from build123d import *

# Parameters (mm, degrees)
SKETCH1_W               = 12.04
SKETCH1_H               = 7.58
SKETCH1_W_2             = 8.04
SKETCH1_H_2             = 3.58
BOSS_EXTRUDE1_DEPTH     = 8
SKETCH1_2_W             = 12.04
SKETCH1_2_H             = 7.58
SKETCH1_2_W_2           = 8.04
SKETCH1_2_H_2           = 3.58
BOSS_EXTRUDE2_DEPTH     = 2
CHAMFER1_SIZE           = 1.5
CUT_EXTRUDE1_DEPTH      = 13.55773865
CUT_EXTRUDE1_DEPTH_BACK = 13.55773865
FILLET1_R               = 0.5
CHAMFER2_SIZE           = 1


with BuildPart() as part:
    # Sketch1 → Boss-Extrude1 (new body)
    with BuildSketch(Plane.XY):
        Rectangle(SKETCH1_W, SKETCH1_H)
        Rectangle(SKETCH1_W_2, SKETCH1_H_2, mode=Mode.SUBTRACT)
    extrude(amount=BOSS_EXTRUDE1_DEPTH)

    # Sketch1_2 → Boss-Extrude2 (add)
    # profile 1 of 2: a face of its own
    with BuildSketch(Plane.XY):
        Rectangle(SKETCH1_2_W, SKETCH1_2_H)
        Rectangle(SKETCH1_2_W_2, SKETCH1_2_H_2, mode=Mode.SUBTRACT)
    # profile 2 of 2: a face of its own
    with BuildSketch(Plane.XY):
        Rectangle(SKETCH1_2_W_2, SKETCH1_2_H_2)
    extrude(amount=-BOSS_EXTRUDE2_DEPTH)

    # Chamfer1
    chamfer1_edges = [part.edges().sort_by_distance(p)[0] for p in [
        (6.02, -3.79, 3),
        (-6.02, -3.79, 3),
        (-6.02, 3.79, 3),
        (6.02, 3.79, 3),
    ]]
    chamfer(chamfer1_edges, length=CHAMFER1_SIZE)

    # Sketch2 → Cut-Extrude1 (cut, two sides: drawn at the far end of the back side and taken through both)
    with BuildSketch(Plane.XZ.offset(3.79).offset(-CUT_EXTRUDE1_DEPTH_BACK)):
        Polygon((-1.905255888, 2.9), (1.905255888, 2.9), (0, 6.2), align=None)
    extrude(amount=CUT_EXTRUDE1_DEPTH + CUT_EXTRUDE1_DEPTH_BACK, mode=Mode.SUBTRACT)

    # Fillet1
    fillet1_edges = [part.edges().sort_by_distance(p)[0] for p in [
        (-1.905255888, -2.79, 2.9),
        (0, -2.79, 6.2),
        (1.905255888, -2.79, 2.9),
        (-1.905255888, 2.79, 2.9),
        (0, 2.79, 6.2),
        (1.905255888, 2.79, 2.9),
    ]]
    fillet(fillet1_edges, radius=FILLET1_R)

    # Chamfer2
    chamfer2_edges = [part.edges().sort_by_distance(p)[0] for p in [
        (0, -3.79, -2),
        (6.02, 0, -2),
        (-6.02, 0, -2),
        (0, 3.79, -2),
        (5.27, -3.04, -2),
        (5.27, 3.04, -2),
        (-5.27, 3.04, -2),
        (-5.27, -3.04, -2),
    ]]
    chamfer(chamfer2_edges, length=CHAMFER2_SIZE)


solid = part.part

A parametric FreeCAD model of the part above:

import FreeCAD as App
import Part
import Sketcher

V = App.Vector
Q = App.Units.Quantity


def edges_at(feature, points):
    """Names of the edges that pass closest to the given points."""
    edges = feature.Shape.Edges
    near = lambda p: min(range(len(edges)), key=lambda i: edges[i].distToShape(Part.Vertex(*p))[0])
    return sorted({f"Edge{near(p) + 1}" for p in points})


def add_polygon(sketch, points):
    """Adds a closed chain of lines whose ends are joined by coincident constraints."""
    first, n = sketch.GeometryCount, len(points)
    for a, b in zip(points, points[1:] + points[:1]):
        sketch.addGeometry(Part.LineSegment(App.Vector(*a, 0), App.Vector(*b, 0)), False)
    for i in range(n):
        sketch.addConstraint(Sketcher.Constraint("Coincident", first + i, 2, first + (i + 1) % n, 1))

doc = App.newDocument("Part")
params = doc.addObject("Spreadsheet::Sheet", "Params")
for row, (alias, value) in enumerate([
    ("sketch1_width", "12.04 mm"),
    ("sketch1_height", "7.58 mm"),
    ("pad1_length", "8 mm"),
    ("sketch2_width", "12.04 mm"),
    ("sketch2_height", "7.58 mm"),
    ("pad2_length", "2 mm"),
    ("chamfer_size", "1.5 mm"),
    ("fillet_radius", "0.5 mm"),
    ("chamfer2_size", "1 mm"),
], start=1):
    params.set(f"A{row}", alias)
    params.set(f"B{row}", "=" + value)
    params.setAlias(f"B{row}", alias)

body = doc.addObject("PartDesign::Body", "Body")

# Sketch on XY plane
sketch1 = body.newObject("Sketcher::SketchObject", "Sketch")
sketch1.AttachmentSupport = (doc.getObject("XY_Plane"), [""])
sketch1.MapMode = "FlatFace"
add_polygon(sketch1, [(-6, 3.8), (-6, -3.8), (6, -3.8), (6, 3.8)])  # lines 0-3
add_polygon(sketch1, [(4, -1.8), (-4, -1.8), (-4, 1.8), (4, 1.8)])  # lines 4-7
sketch1.addConstraint([
    Sketcher.Constraint("Vertical", 0),
    Sketcher.Constraint("Horizontal", 1),
    Sketcher.Constraint("Vertical", 2),
    Sketcher.Constraint("Horizontal", 3),
    Sketcher.Constraint("Horizontal", 4),
    Sketcher.Constraint("Vertical", 5),
    Sketcher.Constraint("Horizontal", 6),
    Sketcher.Constraint("Vertical", 7),
    Sketcher.Constraint("Symmetric", 0, 2, 2, 2, -1, 1),
    Sketcher.Constraint("Symmetric", 4, 2, 6, 2, -1, 1),
    Sketcher.Constraint("DistanceX", 0, 2, 4, 2, Q("2 mm")),
    Sketcher.Constraint("DistanceY", 0, 2, 4, 2, Q("2 mm")),
    Sketcher.Constraint("DistanceX", 1, 1, 1, 2, Q("12.04 mm")),
    Sketcher.Constraint("DistanceY", 0, 2, 0, 1, Q("7.58 mm")),
])
sketch1.setExpression("Constraints[20]", "Params.sketch1_width")
sketch1.setExpression("Constraints[21]", "Params.sketch1_height")
pad1 = body.newObject("PartDesign::Pad", "Pad")
pad1.Profile = sketch1
pad1.setExpression("Length", "Params.pad1_length")

# Sketch on XY plane
sketch2 = body.newObject("Sketcher::SketchObject", "Sketch001")
sketch2.AttachmentSupport = (doc.getObject("XY_Plane"), [""])
sketch2.MapMode = "FlatFace"
add_polygon(sketch2, [(-6, 4), (-6, -4), (6, -4), (6, 4)])  # lines 0-3
sketch2.addConstraint([
    Sketcher.Constraint("Vertical", 0),
    Sketcher.Constraint("Horizontal", 1),
    Sketcher.Constraint("Vertical", 2),
    Sketcher.Constraint("Horizontal", 3),
    Sketcher.Constraint("Symmetric", 0, 2, 2, 2, -1, 1),
    Sketcher.Constraint("DistanceX", 1, 1, 1, 2, Q("12.04 mm")),
    Sketcher.Constraint("DistanceY", 0, 2, 0, 1, Q("7.58 mm")),
])
sketch2.setExpression("Constraints[9]", "Params.sketch2_width")
sketch2.setExpression("Constraints[10]", "Params.sketch2_height")
pad2 = body.newObject("PartDesign::Pad", "Pad001")
pad2.Profile = sketch2
pad2.setExpression("Length", "Params.pad2_length")
pad2.Reversed = True
doc.recompute()

chamfer = body.newObject("PartDesign::Chamfer", "Chamfer")
chamfer.Base = (pad2, edges_at(pad2, [
    (6.02, -3.79, 3),
    (-6.02, -3.79, 3),
    (-6.02, 3.79, 3),
    (6.02, 3.79, 3),
]))
chamfer.setExpression("Size", "Params.chamfer_size")

# Sketch on XZ plane
sketch3 = body.newObject("Sketcher::SketchObject", "Sketch002")
sketch3.AttachmentSupport = (doc.getObject("XZ_Plane"), [""])
sketch3.MapMode = "FlatFace"
sketch3.AttachmentOffset = App.Placement(V(0, 0, 3.79), App.Rotation())
add_polygon(sketch3, [(-1.9, 2.9), (1.9, 2.9), (0, 6.2)])  # lines 0-2
sketch3.addConstraint([
    Sketcher.Constraint("Horizontal", 0),
    Sketcher.Constraint("PointOnObject", 1, 2, -2),
    Sketcher.Constraint("Equal", 1, 2),
    Sketcher.Constraint("Angle", 1, Q("120 deg")),
    Sketcher.Constraint("DistanceY", -1, 1, 0, 2, Q("2.9 mm")),
    Sketcher.Constraint("DistanceY", -1, 1, 1, 2, Q("6.2 mm")),
])
pocket1 = body.newObject("PartDesign::Pocket", "Pocket")
pocket1.Profile = sketch3
pocket1.Type = "ThroughAll"
pocket1.Midplane = True
doc.recompute()

fillet = body.newObject("PartDesign::Fillet", "Fillet")
fillet.Base = (pocket1, edges_at(pocket1, [
    (-1.905, -2.79, 2.9),
    (0, -2.79, 6.2),
    (1.905, -2.79, 2.9),
    (-1.905, 2.79, 2.9),
    (0, 2.79, 6.2),
    (1.905, 2.79, 2.9),
]))
fillet.setExpression("Radius", "Params.fillet_radius")
doc.recompute()

chamfer2 = body.newObject("PartDesign::Chamfer", "Chamfer001")
chamfer2.Base = (fillet, edges_at(fillet, [
    (0, -3.79, -2),
    (6.02, 0, -2),
    (-6.02, 0, -2),
    (0, 3.79, -2),
    (5.27, -3.04, -2),
    (5.27, 3.04, -2),
    (-5.27, 3.04, -2),
    (-5.27, -3.04, -2),
]))
chamfer2.setExpression("Size", "Params.chamfer2_size")

doc.recompute()
